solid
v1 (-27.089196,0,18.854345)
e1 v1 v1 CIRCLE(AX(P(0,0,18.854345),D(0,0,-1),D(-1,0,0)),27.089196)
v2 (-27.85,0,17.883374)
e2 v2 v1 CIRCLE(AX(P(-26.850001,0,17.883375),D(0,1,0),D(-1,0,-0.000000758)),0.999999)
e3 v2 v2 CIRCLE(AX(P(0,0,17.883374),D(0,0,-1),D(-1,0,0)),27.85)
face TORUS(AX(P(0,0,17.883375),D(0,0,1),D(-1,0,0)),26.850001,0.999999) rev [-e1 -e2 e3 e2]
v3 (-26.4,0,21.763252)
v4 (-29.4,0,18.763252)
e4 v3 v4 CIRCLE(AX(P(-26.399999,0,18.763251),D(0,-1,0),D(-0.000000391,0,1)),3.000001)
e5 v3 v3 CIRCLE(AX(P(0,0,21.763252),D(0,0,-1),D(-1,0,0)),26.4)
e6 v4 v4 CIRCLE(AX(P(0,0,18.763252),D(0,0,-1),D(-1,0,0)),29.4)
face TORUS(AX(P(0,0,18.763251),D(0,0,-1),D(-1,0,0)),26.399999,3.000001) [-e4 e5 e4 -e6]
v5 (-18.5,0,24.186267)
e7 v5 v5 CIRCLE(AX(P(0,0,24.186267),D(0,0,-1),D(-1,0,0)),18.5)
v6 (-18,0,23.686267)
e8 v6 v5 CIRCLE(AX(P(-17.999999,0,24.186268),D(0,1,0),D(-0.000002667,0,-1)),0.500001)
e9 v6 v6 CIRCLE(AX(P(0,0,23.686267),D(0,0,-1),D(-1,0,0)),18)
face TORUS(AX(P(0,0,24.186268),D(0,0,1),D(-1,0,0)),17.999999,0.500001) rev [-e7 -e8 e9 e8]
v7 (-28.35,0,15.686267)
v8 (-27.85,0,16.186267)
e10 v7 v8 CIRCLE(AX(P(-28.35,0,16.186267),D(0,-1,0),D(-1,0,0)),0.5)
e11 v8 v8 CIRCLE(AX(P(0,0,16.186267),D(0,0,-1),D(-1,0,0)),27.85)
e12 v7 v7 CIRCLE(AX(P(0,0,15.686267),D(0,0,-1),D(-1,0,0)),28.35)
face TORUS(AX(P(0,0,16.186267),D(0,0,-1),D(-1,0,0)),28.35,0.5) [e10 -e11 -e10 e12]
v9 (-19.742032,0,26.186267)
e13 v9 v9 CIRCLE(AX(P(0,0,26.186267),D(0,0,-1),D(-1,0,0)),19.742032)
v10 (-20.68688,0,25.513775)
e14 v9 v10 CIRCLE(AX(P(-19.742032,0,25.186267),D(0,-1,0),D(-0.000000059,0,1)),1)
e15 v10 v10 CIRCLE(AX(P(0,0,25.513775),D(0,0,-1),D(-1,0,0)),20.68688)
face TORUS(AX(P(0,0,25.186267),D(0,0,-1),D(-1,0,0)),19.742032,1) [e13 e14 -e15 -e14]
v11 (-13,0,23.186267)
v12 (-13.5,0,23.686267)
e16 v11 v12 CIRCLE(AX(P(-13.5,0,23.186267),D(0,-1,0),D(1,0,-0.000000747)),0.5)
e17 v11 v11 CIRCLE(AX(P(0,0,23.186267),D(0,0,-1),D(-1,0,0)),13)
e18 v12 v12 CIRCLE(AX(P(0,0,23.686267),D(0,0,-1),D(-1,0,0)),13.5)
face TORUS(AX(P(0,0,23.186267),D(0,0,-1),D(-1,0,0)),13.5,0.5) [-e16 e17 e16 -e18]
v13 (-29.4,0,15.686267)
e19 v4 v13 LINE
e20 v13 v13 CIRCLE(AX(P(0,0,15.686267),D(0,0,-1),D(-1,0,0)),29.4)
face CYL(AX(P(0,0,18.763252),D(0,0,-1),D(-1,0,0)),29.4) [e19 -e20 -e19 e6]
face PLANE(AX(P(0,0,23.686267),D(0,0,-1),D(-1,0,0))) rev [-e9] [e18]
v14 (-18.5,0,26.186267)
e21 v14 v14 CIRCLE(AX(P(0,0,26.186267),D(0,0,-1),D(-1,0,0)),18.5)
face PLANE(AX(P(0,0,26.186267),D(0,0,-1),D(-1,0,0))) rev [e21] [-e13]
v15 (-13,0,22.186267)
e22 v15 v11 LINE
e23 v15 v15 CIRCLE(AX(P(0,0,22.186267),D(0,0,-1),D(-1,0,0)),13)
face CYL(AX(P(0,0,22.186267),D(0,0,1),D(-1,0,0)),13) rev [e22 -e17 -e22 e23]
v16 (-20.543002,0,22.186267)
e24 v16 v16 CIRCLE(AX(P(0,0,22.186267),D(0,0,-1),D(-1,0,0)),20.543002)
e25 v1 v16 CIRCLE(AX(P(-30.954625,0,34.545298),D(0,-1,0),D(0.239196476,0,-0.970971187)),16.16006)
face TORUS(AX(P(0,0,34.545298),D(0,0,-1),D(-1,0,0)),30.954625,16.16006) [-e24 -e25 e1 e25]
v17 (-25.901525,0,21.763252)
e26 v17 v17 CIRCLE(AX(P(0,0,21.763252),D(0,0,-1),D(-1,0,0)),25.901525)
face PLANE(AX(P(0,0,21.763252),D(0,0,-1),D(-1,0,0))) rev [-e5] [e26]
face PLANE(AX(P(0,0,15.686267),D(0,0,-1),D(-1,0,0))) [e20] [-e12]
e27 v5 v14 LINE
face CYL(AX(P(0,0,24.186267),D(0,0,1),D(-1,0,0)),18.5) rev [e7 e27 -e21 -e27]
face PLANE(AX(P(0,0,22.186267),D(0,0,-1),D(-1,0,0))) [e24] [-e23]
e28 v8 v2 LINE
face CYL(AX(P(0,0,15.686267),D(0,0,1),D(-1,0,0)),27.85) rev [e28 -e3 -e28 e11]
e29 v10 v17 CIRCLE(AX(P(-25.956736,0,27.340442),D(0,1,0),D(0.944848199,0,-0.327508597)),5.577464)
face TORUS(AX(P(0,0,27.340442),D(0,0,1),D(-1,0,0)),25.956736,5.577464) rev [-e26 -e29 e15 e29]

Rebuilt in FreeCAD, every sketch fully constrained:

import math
import FreeCAD as App
import Part
import Sketcher
from FreeCAD import Vector


def edges_at(feature, points):
    """Names of the edges that pass closest to the given points."""
    edges = feature.Shape.Edges
    near = lambda p: min(range(len(edges)), key=lambda i: edges[i].distToShape(Part.Vertex(*p))[0])
    return sorted({f"Edge{near(p) + 1}" for p in points})

doc = App.newDocument("Part")
body = doc.addObject("PartDesign::Body", "Body")

# Sketch on XZ plane
sketch1 = doc.addObject("Sketcher::SketchObject", "Sketch")
body.addObject(sketch1)
sketch1.AttachmentSupport = (doc.XZ_Plane, [""])
sketch1.MapMode = "FlatFace"
sketch1.addGeometry(Part.ArcOfCircle(Part.Circle(Vector(-13.5, 23.19, 0), Vector(0, 0, 1), 0.5), math.radians(0), math.radians(90)), False)
sketch1.addGeometry(Part.LineSegment(Vector(-13.5, 23.69, 0), Vector(-18, 23.69, 0)), False)
sketch1.addGeometry(Part.ArcOfCircle(Part.Circle(Vector(-18, 24.19, 0), Vector(0, 0, 1), 0.5), math.radians(-180), math.radians(-90)), False)
sketch1.addGeometry(Part.LineSegment(Vector(-18.5, 24.19, 0), Vector(-18.5, 26.19, 0)), False)
sketch1.addGeometry(Part.LineSegment(Vector(-18.5, 26.19, 0), Vector(-19.74, 26.19, 0)), False)
sketch1.addGeometry(Part.ArcOfCircle(Part.Circle(Vector(-19.74, 25.19, 0), Vector(0, 0, 1), 1), math.radians(90), math.radians(161)), False)
sketch1.addGeometry(Part.ArcOfCircle(Part.Circle(Vector(-25.96, 27.34, 0), Vector(0, 0, 1), 5.58), math.radians(-89), math.radians(-19)), False)
sketch1.addGeometry(Part.LineSegment(Vector(-25.9, 21.76, 0), Vector(-26.4, 21.76, 0)), False)
sketch1.addGeometry(Part.ArcOfCircle(Part.Circle(Vector(-26.4, 18.76, 0), Vector(0, 0, 1), 3), math.radians(90), math.radians(180)), False)
sketch1.addGeometry(Part.LineSegment(Vector(-29.4, 18.76, 0), Vector(-29.4, 15.69, 0)), False)
sketch1.addGeometry(Part.LineSegment(Vector(-29.4, 15.69, 0), Vector(-27.85, 15.69, 0)), False)
sketch1.addGeometry(Part.LineSegment(Vector(-27.85, 15.69, 0), Vector(-27.85, 17.88, 0)), False)
sketch1.addGeometry(Part.ArcOfCircle(Part.Circle(Vector(-26.85, 17.88, 0), Vector(0, 0, 1), 1), math.radians(104), math.radians(180)), False)
sketch1.addGeometry(Part.ArcOfCircle(Part.Circle(Vector(-30.95, 34.55, 0), Vector(0, 0, 1), 16.16), math.radians(-76), math.radians(-50)), False)
sketch1.addGeometry(Part.LineSegment(Vector(-20.54, 22.19, 0), Vector(-13, 22.19, 0)), False)
sketch1.addGeometry(Part.LineSegment(Vector(-13, 22.19, 0), Vector(-13, 23.19, 0)), False)
sketch1.addConstraint(Sketcher.Constraint("Tangent", 0, 2, 1, 1))
sketch1.addConstraint(Sketcher.Constraint("Coincident", 1, 2, 2, 2))
sketch1.addConstraint(Sketcher.Constraint("Coincident", 2, 1, 3, 1))
sketch1.addConstraint(Sketcher.Constraint("Coincident", 3, 2, 4, 1))
sketch1.addConstraint(Sketcher.Constraint("Tangent", 4, 2, 5, 1))
sketch1.addConstraint(Sketcher.Constraint("Tangent", 5, 2, 6, 2))
sketch1.addConstraint(Sketcher.Constraint("Coincident", 6, 1, 7, 1))
sketch1.addConstraint(Sketcher.Constraint("Tangent", 7, 2, 8, 1))
sketch1.addConstraint(Sketcher.Constraint("Tangent", 8, 2, 9, 1))
sketch1.addConstraint(Sketcher.Constraint("Coincident", 9, 2, 10, 1))
sketch1.addConstraint(Sketcher.Constraint("Coincident", 10, 2, 11, 1))
sketch1.addConstraint(Sketcher.Constraint("Tangent", 11, 2, 12, 2))
sketch1.addConstraint(Sketcher.Constraint("Tangent", 12, 1, 13, 1))
sketch1.addConstraint(Sketcher.Constraint("Coincident", 13, 2, 14, 1))
sketch1.addConstraint(Sketcher.Constraint("Coincident", 14, 2, 15, 1))
sketch1.addConstraint(Sketcher.Constraint("Tangent", 15, 2, 0, 1))
sketch1.addConstraint(Sketcher.Constraint("Horizontal", 1))
sketch1.addConstraint(Sketcher.Constraint("Vertical", 3))
sketch1.addConstraint(Sketcher.Constraint("Horizontal", 4))
sketch1.addConstraint(Sketcher.Constraint("Horizontal", 7))
sketch1.addConstraint(Sketcher.Constraint("Vertical", 9))
sketch1.addConstraint(Sketcher.Constraint("Horizontal", 10))
sketch1.addConstraint(Sketcher.Constraint("Vertical", 11))
sketch1.addConstraint(Sketcher.Constraint("Horizontal", 14))
sketch1.addConstraint(Sketcher.Constraint("Vertical", 15))
sketch1.addConstraint(Sketcher.Constraint("Equal", 0, 2))
sketch1.addConstraint(Sketcher.Constraint("Equal", 5, 12))
sketch1.addConstraint(Sketcher.Constraint("Vertical", 2, 3, 1, 2))
sketch1.addConstraint(Sketcher.Constraint("Radius", 5, 1.0))
sketch1.addConstraint(Sketcher.Constraint("Radius", 8, 3.000001))
sketch1.addConstraint(Sketcher.Constraint("Radius", 0, 0.5))
sketch1.addConstraint(Sketcher.Constraint("DistanceY", 3, 1, 3, 2, 2.0))
sketch1.addConstraint(Sketcher.Constraint("DistanceY", 15, 1, 15, 2, 1.0))
sketch1.addConstraint(Sketcher.Constraint("DistanceX", 1, 2, 1, 1, 4.5))
sketch1.addConstraint(Sketcher.Constraint("DistanceX", 2, 3, -1, 1, 17.999999))
sketch1.addConstraint(Sketcher.Constraint("DistanceY", 2, 3, 5, 3, 0.999999))
sketch1.addConstraint(Sketcher.Constraint("DistanceX", 10, 1, 10, 2, 1.55))
sketch1.addConstraint(Sketcher.Constraint("DistanceX", 8, 3, -1, 1, 26.399999))
sketch1.addConstraint(Sketcher.Constraint("Radius", 13, 16.16006))
sketch1.addConstraint(Sketcher.Constraint("Radius", 6, 5.577464))
sketch1.addConstraint(Sketcher.Constraint("DistanceX", 4, 2, 4, 1, 1.242032))
sketch1.addConstraint(Sketcher.Constraint("DistanceX", 7, 2, 7, 1, 0.498475))
sketch1.addConstraint(Sketcher.Constraint("DistanceX", 14, 1, 14, 2, 7.543002))
sketch1.addConstraint(Sketcher.Constraint("DistanceY", 9, 2, 9, 1, 3.076985))
sketch1.addConstraint(Sketcher.Constraint("DistanceY", 11, 1, 11, 2, 2.197107))
sketch1.addConstraint(Sketcher.Constraint("DistanceY", -1, 1, 2, 3, 24.186268))
sketch1.addConstraint(Sketcher.Constraint("DistanceY", -1, 1, 8, 3, 18.763251))
revolution = doc.addObject("PartDesign::Revolution", "Revolution")
body.addObject(revolution)
revolution.Profile = sketch1
revolution.ReferenceAxis = (sketch1, ["V_Axis"])
revolution.Angle = 360
doc.recompute()

fillet = doc.addObject("PartDesign::Fillet", "Fillet")
body.addObject(fillet)
fillet.Base = (revolution, edges_at(revolution, [(27.85, 0, 15.686)]))
fillet.Radius = 0.5

doc.recompute()
